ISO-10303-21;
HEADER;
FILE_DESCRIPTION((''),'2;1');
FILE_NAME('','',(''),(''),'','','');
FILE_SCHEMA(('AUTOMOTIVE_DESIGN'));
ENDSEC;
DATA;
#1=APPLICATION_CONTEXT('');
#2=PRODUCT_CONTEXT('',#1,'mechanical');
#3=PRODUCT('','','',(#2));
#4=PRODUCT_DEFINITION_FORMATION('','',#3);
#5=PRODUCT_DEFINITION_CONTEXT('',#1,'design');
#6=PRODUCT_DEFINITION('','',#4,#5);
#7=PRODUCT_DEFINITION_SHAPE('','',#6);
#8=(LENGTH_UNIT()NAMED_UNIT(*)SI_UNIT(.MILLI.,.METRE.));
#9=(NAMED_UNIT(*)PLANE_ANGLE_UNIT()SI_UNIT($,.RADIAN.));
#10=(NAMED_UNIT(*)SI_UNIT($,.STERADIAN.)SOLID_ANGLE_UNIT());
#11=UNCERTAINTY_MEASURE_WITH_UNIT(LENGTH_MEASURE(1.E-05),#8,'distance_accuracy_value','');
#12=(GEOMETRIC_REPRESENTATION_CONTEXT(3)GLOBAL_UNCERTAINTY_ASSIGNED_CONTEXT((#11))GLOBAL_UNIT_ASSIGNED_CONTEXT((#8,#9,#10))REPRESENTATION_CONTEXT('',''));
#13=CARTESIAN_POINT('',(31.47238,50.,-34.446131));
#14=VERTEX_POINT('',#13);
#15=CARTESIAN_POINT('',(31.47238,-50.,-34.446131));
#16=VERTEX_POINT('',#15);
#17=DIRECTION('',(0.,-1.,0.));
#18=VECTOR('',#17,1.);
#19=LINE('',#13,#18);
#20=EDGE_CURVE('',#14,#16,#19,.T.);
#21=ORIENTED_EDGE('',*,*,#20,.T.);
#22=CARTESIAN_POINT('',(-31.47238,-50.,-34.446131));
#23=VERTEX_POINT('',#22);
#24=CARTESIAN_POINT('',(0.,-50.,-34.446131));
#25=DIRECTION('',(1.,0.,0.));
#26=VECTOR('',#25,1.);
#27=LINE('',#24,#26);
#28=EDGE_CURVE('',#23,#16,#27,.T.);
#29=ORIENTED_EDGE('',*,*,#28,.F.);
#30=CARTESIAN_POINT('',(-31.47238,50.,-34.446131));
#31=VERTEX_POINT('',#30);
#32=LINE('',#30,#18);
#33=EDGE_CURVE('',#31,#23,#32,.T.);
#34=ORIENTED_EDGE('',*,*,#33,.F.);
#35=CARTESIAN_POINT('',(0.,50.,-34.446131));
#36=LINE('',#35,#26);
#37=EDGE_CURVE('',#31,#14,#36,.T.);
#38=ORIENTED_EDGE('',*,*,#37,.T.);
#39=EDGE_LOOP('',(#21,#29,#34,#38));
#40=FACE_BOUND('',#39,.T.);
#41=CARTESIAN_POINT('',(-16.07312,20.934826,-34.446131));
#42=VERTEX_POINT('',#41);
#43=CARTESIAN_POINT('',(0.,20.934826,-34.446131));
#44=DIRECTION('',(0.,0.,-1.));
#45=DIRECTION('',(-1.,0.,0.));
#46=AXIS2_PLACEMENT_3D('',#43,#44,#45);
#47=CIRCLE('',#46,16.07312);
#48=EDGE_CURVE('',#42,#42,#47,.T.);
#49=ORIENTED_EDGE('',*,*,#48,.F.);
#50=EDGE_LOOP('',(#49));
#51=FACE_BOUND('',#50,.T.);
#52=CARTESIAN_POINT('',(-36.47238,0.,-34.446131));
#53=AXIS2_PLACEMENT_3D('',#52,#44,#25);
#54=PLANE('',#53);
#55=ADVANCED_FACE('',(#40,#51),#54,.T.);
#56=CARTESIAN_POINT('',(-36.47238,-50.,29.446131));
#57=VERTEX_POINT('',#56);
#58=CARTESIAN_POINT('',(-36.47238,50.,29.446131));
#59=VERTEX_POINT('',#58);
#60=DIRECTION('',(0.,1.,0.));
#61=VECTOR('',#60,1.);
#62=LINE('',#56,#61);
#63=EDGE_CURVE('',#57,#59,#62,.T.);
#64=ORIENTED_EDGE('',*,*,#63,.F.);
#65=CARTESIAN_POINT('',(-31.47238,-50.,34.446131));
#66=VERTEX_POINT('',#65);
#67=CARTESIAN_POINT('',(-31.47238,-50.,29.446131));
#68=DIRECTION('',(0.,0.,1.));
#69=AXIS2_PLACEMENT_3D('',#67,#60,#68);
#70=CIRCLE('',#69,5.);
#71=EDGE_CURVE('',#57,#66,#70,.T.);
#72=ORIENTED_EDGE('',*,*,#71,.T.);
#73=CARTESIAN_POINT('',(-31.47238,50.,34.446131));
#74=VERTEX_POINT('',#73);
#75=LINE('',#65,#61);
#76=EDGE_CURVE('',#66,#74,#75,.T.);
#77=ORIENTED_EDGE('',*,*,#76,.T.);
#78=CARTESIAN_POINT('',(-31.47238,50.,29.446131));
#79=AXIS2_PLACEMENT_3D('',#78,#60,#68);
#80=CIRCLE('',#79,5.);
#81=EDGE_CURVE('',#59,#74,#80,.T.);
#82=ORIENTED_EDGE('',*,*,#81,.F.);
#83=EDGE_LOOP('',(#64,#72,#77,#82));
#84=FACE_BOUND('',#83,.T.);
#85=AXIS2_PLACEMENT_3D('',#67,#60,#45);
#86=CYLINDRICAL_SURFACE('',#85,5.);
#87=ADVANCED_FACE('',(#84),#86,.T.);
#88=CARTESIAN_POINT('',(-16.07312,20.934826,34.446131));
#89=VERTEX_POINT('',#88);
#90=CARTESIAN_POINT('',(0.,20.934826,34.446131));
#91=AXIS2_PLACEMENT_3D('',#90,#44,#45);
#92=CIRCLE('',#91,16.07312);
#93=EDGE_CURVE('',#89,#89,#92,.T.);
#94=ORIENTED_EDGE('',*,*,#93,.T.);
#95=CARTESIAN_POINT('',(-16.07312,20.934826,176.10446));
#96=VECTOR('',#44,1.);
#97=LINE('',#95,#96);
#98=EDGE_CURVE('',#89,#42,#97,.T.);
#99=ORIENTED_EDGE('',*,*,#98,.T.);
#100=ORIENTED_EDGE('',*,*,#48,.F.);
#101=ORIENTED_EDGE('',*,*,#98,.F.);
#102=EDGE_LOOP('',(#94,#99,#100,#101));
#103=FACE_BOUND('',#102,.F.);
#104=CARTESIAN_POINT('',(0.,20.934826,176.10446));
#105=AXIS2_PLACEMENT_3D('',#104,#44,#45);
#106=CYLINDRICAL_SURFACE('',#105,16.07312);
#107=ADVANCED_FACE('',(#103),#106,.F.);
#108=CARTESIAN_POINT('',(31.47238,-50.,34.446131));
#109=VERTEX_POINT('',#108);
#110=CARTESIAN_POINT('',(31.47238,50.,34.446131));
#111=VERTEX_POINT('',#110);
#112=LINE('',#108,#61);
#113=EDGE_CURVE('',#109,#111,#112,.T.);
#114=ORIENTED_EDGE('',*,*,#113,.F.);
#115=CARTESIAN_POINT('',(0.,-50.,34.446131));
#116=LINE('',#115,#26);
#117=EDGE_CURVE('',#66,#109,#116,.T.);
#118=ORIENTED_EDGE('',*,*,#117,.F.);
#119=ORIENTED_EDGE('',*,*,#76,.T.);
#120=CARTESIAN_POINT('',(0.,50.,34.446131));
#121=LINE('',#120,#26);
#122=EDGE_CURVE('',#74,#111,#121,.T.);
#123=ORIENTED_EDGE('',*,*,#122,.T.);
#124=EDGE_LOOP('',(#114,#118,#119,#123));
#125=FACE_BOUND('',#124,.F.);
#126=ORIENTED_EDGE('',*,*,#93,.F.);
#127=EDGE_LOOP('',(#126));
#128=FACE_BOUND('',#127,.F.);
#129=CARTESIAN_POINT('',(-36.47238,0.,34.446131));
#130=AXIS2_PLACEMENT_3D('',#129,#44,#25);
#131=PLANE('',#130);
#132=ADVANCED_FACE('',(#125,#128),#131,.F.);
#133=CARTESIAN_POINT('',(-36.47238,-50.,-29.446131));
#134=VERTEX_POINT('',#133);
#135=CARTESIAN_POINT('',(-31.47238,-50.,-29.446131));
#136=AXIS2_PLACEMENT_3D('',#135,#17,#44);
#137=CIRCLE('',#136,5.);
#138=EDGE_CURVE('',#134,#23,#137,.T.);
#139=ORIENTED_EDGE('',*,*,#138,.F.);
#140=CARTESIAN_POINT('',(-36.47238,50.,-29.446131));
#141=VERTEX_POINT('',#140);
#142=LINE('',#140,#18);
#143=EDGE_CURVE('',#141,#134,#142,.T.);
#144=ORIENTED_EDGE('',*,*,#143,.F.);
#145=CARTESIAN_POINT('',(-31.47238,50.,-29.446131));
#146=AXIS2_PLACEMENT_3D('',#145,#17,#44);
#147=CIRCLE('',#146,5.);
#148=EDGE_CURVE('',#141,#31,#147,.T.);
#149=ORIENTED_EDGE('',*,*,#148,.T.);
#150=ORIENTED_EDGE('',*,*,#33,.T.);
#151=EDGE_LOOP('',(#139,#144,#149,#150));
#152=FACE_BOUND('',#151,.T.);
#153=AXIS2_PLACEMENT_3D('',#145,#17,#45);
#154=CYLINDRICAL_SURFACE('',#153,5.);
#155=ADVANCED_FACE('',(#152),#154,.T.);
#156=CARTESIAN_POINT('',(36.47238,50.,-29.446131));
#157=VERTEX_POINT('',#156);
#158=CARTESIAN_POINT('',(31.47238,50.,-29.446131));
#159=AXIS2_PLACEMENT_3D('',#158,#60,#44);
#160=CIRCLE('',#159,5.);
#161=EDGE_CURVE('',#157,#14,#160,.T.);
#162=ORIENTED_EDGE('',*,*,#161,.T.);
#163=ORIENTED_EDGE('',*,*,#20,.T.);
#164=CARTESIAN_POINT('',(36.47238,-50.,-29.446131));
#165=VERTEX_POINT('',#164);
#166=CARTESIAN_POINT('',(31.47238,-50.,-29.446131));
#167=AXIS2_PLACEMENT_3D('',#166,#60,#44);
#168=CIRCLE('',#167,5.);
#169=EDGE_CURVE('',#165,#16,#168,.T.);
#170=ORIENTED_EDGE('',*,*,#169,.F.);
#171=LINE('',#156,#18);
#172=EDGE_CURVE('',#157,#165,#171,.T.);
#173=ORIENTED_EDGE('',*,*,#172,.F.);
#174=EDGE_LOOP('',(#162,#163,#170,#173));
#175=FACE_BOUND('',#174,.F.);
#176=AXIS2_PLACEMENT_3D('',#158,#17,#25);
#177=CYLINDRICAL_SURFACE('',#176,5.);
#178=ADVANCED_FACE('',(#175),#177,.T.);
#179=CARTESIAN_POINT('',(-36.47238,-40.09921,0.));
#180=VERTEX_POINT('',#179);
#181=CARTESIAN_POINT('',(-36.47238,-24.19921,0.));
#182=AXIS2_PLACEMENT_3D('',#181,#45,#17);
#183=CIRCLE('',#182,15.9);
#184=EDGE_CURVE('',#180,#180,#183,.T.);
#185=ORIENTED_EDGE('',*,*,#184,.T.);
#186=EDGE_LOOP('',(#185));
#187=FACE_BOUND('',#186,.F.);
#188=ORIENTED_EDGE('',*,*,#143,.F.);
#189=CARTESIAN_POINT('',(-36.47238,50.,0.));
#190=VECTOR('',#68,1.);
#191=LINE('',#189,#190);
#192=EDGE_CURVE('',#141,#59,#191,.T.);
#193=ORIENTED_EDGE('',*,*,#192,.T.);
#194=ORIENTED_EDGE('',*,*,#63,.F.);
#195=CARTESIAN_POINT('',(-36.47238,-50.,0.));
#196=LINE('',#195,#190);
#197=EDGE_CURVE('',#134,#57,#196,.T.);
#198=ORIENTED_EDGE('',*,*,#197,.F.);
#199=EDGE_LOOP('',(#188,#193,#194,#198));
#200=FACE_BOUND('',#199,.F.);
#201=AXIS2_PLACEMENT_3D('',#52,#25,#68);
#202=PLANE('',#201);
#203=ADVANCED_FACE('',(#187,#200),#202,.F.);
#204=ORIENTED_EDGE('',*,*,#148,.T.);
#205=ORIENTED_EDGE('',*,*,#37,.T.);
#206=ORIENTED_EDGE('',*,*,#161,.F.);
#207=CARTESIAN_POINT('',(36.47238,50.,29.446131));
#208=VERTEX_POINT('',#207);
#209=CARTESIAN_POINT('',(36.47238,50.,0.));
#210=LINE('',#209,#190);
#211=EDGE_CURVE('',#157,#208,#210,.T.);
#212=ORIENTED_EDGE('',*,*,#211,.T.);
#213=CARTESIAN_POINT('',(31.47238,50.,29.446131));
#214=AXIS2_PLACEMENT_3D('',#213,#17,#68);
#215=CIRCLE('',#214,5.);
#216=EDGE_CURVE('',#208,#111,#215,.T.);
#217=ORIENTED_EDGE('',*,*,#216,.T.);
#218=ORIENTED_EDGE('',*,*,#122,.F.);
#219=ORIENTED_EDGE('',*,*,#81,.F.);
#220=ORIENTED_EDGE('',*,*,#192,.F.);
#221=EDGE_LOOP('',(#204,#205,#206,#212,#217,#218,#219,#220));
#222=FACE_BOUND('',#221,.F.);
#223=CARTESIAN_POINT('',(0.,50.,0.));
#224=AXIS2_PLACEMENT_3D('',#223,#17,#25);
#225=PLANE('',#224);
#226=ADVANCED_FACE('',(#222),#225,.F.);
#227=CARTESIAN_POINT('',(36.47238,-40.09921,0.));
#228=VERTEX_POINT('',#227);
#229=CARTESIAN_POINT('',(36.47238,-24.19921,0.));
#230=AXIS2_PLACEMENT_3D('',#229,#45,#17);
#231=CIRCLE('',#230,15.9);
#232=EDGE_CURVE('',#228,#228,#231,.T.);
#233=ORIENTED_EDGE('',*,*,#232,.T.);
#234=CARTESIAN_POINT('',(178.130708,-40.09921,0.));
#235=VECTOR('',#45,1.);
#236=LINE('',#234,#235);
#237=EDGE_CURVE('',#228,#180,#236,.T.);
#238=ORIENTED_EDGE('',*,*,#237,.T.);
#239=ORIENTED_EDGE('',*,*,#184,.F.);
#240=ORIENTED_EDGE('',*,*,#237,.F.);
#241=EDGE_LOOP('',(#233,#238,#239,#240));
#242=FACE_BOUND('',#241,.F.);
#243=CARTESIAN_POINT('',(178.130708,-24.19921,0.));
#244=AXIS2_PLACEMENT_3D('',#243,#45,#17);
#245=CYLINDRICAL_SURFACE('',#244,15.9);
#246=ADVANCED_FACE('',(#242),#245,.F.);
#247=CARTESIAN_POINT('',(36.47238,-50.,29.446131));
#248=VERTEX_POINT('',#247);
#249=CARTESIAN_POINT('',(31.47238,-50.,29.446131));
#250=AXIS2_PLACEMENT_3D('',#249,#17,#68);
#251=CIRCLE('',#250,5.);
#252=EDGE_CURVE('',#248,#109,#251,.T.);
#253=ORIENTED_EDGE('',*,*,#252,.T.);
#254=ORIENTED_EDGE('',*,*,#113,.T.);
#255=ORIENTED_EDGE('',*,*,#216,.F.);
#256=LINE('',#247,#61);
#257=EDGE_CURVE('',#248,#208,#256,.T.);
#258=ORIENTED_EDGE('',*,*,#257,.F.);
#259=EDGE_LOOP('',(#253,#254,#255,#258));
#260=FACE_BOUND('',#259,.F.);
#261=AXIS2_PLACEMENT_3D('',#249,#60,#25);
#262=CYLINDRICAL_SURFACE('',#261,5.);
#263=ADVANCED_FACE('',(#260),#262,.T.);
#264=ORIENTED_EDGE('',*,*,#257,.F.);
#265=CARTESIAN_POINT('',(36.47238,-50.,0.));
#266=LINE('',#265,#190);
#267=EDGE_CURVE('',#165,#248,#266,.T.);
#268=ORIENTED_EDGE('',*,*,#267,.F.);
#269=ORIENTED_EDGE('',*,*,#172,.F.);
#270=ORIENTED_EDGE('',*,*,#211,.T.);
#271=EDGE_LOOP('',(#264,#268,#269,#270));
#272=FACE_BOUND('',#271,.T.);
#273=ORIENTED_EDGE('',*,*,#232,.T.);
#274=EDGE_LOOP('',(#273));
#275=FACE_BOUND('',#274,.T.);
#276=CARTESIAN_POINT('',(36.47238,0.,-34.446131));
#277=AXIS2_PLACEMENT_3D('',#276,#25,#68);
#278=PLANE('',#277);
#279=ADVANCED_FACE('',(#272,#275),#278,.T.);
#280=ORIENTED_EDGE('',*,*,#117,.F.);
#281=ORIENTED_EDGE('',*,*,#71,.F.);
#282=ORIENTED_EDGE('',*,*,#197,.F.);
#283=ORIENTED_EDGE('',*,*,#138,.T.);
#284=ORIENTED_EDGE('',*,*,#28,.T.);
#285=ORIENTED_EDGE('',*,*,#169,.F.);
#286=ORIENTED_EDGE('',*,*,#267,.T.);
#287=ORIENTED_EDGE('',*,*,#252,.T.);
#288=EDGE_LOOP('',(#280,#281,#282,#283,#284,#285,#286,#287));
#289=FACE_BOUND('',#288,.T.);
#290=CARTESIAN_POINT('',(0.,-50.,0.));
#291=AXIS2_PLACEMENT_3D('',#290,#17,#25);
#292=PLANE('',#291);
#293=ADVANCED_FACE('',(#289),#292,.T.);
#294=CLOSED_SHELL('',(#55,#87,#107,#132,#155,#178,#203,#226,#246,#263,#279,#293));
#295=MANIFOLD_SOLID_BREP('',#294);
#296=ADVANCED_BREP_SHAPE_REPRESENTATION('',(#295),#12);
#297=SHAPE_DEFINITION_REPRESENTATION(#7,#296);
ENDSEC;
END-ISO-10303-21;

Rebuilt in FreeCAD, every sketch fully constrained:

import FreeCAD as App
import Part
import Sketcher
from FreeCAD import Vector


def edges_at(feature, points):
    """Names of the edges that pass closest to the given points."""
    edges = feature.Shape.Edges
    near = lambda p: min(range(len(edges)), key=lambda i: edges[i].distToShape(Part.Vertex(*p))[0])
    return sorted({f"Edge{near(p) + 1}" for p in points})


def add_polygon(sketch, points):
    """Adds a closed chain of lines whose ends are joined by coincident constraints."""
    first, n = sketch.GeometryCount, len(points)
    for a, b in zip(points, points[1:] + points[:1]):
        sketch.addGeometry(Part.LineSegment(App.Vector(*a, 0), App.Vector(*b, 0)), False)
    for i in range(n):
        sketch.addConstraint(Sketcher.Constraint("Coincident", first + i, 2, first + (i + 1) % n, 1))

doc = App.newDocument("Part")
body = doc.addObject("PartDesign::Body", "Body")

sketch1 = body.newObject("Sketcher::SketchObject", "Sketch")
sketch1.AttachmentSupport = (doc.getObject("XZ_Plane"), [""])
sketch1.MapMode = "FlatFace"
add_polygon(sketch1, [(-36, 34), (-36, -34), (36, -34), (36, 34)])
sketch1.addConstraint(Sketcher.Constraint("Vertical", 0))
sketch1.addConstraint(Sketcher.Constraint("Horizontal", 1))
sketch1.addConstraint(Sketcher.Constraint("Vertical", 2))
sketch1.addConstraint(Sketcher.Constraint("Horizontal", 3))
sketch1.addConstraint(Sketcher.Constraint("Symmetric", 0, 2, 2, 2, -1, 1))
sketch1.addConstraint(Sketcher.Constraint("DistanceX", 1, 1, 1, 2, 72.94476))
sketch1.addConstraint(Sketcher.Constraint("DistanceY", 0, 2, 0, 1, 68.892263))
pad1 = body.newObject("PartDesign::Pad", "Pad")
pad1.Profile = sketch1
pad1.Length = 100
pad1.Midplane = True
doc.recompute()

fillet = body.newObject("PartDesign::Fillet", "Fillet")
fillet.Base = (pad1, edges_at(pad1, [
    (36.472, 0, 34.446),
    (-36.472, 0, 34.446),
    (36.472, 0, -34.446),
    (-36.472, 0, -34.446),
]))
fillet.Radius = 5

sketch2 = body.newObject("Sketcher::SketchObject", "Sketch001")
sketch2.AttachmentSupport = (doc.getObject("YZ_Plane"), [""])
sketch2.MapMode = "FlatFace"
sketch2.AttachmentOffset = App.Placement(Vector(0, 0, 36.47238), App.Rotation())
sketch2.addGeometry(Part.Circle(Vector(-24, 0, 0), Vector(0, 0, 1), 16), False)
sketch2.addConstraint(Sketcher.Constraint("PointOnObject", 0, 3, -1))
sketch2.addConstraint(Sketcher.Constraint("Diameter", 0, 31.8))
sketch2.addConstraint(Sketcher.Constraint("DistanceX", 0, 3, -1, 1, 24.19921))
doc.recompute()
hole = body.newObject("PartDesign::Hole", "Hole")
hole.Profile = sketch2
hole.ThreadType = "None"
hole.Diameter = 31.8
hole.DepthType = "ThroughAll"

sketch3 = body.newObject("Sketcher::SketchObject", "Sketch002")
sketch3.AttachmentSupport = (doc.getObject("XY_Plane"), [""])
sketch3.MapMode = "FlatFace"
sketch3.AttachmentOffset = App.Placement(Vector(0, 0, 34.446131), App.Rotation())
sketch3.addGeometry(Part.Circle(Vector(0, 21, 0), Vector(0, 0, 1), 16), False)
sketch3.addConstraint(Sketcher.Constraint("PointOnObject", 0, 3, -2))
sketch3.addConstraint(Sketcher.Constraint("Diameter", 0, 32.14624))
sketch3.addConstraint(Sketcher.Constraint("DistanceY", -1, 1, 0, 3, 20.934826))
doc.recompute()
hole2 = body.newObject("PartDesign::Hole", "Hole001")
hole2.Profile = sketch3
hole2.ThreadType = "None"
hole2.Diameter = 32.14624
hole2.DepthType = "ThroughAll"

doc.recompute()
